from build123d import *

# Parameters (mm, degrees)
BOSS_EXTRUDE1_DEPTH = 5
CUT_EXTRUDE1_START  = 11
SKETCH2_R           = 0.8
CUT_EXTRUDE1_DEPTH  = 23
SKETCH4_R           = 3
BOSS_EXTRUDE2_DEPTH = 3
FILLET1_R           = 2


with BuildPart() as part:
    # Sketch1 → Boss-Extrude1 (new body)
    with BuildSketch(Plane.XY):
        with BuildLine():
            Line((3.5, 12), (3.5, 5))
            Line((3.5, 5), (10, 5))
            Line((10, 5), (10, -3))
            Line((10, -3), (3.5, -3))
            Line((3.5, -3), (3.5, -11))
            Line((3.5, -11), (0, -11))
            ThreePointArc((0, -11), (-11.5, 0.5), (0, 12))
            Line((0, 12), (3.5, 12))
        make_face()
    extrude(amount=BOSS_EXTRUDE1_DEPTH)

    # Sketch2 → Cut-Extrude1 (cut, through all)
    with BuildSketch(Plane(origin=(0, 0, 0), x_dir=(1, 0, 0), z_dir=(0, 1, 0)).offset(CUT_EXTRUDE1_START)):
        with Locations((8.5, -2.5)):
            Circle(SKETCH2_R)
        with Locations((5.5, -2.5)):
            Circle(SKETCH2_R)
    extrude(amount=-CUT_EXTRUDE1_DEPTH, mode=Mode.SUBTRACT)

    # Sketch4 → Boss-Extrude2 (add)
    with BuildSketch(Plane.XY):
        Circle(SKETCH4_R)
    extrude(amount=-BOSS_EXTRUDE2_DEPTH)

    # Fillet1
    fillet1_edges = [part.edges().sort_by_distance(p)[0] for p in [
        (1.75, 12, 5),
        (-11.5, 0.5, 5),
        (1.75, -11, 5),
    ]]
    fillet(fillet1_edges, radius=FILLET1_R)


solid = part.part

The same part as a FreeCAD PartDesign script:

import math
import FreeCAD as App
import Part
import Sketcher


def edges_at(feature, points):
    """Names of the edges that pass closest to the given points."""
    edges = feature.Shape.Edges
    near = lambda p: min(range(len(edges)), key=lambda i: edges[i].distToShape(Part.Vertex(*p))[0])
    return sorted({f"Edge{near(p) + 1}" for p in points})

doc = App.newDocument("Part")
body = doc.addObject("PartDesign::Body", "Body")

# Sketch on XY plane
sketch1 = body.newObject("Sketcher::SketchObject", "Sketch")
sketch1.AttachmentSupport = (doc.getObject("XY_Plane"), [""])
sketch1.MapMode = "FlatFace"
sketch1.addGeometry([
    Part.LineSegment(App.Vector(3.5, 5, 0), App.Vector(3.5, 12, 0)),  # 0
    Part.LineSegment(App.Vector(3.5, 12, 0), App.Vector(0, 12, 0)),  # 1
    Part.ArcOfCircle(Part.Circle(App.Vector(0, 0.5, 0), App.Vector(0, 0, 1), 11.5), math.radians(90), math.radians(270)),  # 2
    Part.LineSegment(App.Vector(0, -11, 0), App.Vector(3.5, -11, 0)),  # 3
    Part.LineSegment(App.Vector(3.5, -11, 0), App.Vector(3.5, -3, 0)),  # 4
    Part.LineSegment(App.Vector(3.5, -3, 0), App.Vector(10, -3, 0)),  # 5
    Part.LineSegment(App.Vector(10, -3, 0), App.Vector(10, 5, 0)),  # 6
    Part.LineSegment(App.Vector(10, 5, 0), App.Vector(3.5, 5, 0)),  # 7
], False)
sketch1.addConstraint([
    Sketcher.Constraint("Coincident", 0, 2, 1, 1),
    Sketcher.Constraint("Tangent", 1, 2, 2, 1),
    Sketcher.Constraint("Tangent", 2, 2, 3, 1),
    Sketcher.Constraint("Coincident", 3, 2, 4, 1),
    Sketcher.Constraint("Coincident", 4, 2, 5, 1),
    Sketcher.Constraint("Coincident", 5, 2, 6, 1),
    Sketcher.Constraint("Coincident", 6, 2, 7, 1),
    Sketcher.Constraint("Coincident", 7, 2, 0, 1),
    Sketcher.Constraint("Vertical", 0),
    Sketcher.Constraint("Horizontal", 1),
    Sketcher.Constraint("Horizontal", 3),
    Sketcher.Constraint("Vertical", 4),
    Sketcher.Constraint("Horizontal", 5),
    Sketcher.Constraint("Vertical", 6),
    Sketcher.Constraint("Horizontal", 7),
    Sketcher.Constraint("PointOnObject", 2, 3, -2),
    Sketcher.Constraint("Vertical", 0, 2, 3, 2),
    Sketcher.Constraint("Equal", 4, 6),
    Sketcher.Constraint("Radius", 2, 11.5),
    Sketcher.Constraint("DistanceY", 0, 1, 0, 2, 7.0),
    Sketcher.Constraint("DistanceX", 1, 2, 1, 1, 3.5),
    Sketcher.Constraint("DistanceX", 5, 1, 5, 2, 6.5),
    Sketcher.Constraint("DistanceY", -1, 1, 0, 2, 12.0),
])
pad1 = body.newObject("PartDesign::Pad", "Pad")
pad1.Profile = sketch1
pad1.Length = 5

# Sketch on XZ plane
sketch2 = body.newObject("Sketcher::SketchObject", "Sketch001")
sketch2.AttachmentSupport = (doc.getObject("XZ_Plane"), [""])
sketch2.MapMode = "FlatFace"
sketch2.AttachmentOffset = App.Placement(App.Vector(0, 0, -11), App.Rotation())
sketch2.addGeometry([
    Part.Circle(App.Vector(8.5, 2.5, 0), App.Vector(0, 0, 1), 0.8),
    Part.Circle(App.Vector(5.5, 2.5, 0), App.Vector(0, 0, 1), 0.8),
], False)
sketch2.addConstraint([
    Sketcher.Constraint("Equal", 0, 1),
    Sketcher.Constraint("Horizontal", 0, 3, 1, 3),
    Sketcher.Constraint("Diameter", 0, 1.6),
    Sketcher.Constraint("DistanceX", 1, 3, 0, 3, 3.0),
    Sketcher.Constraint("DistanceX", -1, 1, 0, 3, 8.5),
    Sketcher.Constraint("DistanceY", -1, 1, 0, 3, 2.5),
])
pocket1 = body.newObject("PartDesign::Pocket", "Pocket")
pocket1.Profile = sketch2
pocket1.Type = "ThroughAll"
pocket1.Reversed = True

# Sketch on XY plane
sketch3 = body.newObject("Sketcher::SketchObject", "Sketch002")
sketch3.AttachmentSupport = (doc.getObject("XY_Plane"), [""])
sketch3.MapMode = "FlatFace"
sketch3.addGeometry(Part.Circle(App.Vector(0, 0, 0), App.Vector(0, 0, 1), 3), False)
sketch3.addConstraint([
    Sketcher.Constraint("Coincident", 0, 3, -1, 1),
    Sketcher.Constraint("Diameter", 0, 6.0),
])
pad2 = body.newObject("PartDesign::Pad", "Pad001")
pad2.Profile = sketch3
pad2.Length = 3
pad2.Reversed = True
doc.recompute()

fillet = body.newObject("PartDesign::Fillet", "Fillet")
fillet.Base = (pad2, edges_at(pad2, [(1.75, 12, 5), (-11.5, 0.5, 5), (1.75, -11, 5)]))
fillet.Radius = 2

doc.recompute()
